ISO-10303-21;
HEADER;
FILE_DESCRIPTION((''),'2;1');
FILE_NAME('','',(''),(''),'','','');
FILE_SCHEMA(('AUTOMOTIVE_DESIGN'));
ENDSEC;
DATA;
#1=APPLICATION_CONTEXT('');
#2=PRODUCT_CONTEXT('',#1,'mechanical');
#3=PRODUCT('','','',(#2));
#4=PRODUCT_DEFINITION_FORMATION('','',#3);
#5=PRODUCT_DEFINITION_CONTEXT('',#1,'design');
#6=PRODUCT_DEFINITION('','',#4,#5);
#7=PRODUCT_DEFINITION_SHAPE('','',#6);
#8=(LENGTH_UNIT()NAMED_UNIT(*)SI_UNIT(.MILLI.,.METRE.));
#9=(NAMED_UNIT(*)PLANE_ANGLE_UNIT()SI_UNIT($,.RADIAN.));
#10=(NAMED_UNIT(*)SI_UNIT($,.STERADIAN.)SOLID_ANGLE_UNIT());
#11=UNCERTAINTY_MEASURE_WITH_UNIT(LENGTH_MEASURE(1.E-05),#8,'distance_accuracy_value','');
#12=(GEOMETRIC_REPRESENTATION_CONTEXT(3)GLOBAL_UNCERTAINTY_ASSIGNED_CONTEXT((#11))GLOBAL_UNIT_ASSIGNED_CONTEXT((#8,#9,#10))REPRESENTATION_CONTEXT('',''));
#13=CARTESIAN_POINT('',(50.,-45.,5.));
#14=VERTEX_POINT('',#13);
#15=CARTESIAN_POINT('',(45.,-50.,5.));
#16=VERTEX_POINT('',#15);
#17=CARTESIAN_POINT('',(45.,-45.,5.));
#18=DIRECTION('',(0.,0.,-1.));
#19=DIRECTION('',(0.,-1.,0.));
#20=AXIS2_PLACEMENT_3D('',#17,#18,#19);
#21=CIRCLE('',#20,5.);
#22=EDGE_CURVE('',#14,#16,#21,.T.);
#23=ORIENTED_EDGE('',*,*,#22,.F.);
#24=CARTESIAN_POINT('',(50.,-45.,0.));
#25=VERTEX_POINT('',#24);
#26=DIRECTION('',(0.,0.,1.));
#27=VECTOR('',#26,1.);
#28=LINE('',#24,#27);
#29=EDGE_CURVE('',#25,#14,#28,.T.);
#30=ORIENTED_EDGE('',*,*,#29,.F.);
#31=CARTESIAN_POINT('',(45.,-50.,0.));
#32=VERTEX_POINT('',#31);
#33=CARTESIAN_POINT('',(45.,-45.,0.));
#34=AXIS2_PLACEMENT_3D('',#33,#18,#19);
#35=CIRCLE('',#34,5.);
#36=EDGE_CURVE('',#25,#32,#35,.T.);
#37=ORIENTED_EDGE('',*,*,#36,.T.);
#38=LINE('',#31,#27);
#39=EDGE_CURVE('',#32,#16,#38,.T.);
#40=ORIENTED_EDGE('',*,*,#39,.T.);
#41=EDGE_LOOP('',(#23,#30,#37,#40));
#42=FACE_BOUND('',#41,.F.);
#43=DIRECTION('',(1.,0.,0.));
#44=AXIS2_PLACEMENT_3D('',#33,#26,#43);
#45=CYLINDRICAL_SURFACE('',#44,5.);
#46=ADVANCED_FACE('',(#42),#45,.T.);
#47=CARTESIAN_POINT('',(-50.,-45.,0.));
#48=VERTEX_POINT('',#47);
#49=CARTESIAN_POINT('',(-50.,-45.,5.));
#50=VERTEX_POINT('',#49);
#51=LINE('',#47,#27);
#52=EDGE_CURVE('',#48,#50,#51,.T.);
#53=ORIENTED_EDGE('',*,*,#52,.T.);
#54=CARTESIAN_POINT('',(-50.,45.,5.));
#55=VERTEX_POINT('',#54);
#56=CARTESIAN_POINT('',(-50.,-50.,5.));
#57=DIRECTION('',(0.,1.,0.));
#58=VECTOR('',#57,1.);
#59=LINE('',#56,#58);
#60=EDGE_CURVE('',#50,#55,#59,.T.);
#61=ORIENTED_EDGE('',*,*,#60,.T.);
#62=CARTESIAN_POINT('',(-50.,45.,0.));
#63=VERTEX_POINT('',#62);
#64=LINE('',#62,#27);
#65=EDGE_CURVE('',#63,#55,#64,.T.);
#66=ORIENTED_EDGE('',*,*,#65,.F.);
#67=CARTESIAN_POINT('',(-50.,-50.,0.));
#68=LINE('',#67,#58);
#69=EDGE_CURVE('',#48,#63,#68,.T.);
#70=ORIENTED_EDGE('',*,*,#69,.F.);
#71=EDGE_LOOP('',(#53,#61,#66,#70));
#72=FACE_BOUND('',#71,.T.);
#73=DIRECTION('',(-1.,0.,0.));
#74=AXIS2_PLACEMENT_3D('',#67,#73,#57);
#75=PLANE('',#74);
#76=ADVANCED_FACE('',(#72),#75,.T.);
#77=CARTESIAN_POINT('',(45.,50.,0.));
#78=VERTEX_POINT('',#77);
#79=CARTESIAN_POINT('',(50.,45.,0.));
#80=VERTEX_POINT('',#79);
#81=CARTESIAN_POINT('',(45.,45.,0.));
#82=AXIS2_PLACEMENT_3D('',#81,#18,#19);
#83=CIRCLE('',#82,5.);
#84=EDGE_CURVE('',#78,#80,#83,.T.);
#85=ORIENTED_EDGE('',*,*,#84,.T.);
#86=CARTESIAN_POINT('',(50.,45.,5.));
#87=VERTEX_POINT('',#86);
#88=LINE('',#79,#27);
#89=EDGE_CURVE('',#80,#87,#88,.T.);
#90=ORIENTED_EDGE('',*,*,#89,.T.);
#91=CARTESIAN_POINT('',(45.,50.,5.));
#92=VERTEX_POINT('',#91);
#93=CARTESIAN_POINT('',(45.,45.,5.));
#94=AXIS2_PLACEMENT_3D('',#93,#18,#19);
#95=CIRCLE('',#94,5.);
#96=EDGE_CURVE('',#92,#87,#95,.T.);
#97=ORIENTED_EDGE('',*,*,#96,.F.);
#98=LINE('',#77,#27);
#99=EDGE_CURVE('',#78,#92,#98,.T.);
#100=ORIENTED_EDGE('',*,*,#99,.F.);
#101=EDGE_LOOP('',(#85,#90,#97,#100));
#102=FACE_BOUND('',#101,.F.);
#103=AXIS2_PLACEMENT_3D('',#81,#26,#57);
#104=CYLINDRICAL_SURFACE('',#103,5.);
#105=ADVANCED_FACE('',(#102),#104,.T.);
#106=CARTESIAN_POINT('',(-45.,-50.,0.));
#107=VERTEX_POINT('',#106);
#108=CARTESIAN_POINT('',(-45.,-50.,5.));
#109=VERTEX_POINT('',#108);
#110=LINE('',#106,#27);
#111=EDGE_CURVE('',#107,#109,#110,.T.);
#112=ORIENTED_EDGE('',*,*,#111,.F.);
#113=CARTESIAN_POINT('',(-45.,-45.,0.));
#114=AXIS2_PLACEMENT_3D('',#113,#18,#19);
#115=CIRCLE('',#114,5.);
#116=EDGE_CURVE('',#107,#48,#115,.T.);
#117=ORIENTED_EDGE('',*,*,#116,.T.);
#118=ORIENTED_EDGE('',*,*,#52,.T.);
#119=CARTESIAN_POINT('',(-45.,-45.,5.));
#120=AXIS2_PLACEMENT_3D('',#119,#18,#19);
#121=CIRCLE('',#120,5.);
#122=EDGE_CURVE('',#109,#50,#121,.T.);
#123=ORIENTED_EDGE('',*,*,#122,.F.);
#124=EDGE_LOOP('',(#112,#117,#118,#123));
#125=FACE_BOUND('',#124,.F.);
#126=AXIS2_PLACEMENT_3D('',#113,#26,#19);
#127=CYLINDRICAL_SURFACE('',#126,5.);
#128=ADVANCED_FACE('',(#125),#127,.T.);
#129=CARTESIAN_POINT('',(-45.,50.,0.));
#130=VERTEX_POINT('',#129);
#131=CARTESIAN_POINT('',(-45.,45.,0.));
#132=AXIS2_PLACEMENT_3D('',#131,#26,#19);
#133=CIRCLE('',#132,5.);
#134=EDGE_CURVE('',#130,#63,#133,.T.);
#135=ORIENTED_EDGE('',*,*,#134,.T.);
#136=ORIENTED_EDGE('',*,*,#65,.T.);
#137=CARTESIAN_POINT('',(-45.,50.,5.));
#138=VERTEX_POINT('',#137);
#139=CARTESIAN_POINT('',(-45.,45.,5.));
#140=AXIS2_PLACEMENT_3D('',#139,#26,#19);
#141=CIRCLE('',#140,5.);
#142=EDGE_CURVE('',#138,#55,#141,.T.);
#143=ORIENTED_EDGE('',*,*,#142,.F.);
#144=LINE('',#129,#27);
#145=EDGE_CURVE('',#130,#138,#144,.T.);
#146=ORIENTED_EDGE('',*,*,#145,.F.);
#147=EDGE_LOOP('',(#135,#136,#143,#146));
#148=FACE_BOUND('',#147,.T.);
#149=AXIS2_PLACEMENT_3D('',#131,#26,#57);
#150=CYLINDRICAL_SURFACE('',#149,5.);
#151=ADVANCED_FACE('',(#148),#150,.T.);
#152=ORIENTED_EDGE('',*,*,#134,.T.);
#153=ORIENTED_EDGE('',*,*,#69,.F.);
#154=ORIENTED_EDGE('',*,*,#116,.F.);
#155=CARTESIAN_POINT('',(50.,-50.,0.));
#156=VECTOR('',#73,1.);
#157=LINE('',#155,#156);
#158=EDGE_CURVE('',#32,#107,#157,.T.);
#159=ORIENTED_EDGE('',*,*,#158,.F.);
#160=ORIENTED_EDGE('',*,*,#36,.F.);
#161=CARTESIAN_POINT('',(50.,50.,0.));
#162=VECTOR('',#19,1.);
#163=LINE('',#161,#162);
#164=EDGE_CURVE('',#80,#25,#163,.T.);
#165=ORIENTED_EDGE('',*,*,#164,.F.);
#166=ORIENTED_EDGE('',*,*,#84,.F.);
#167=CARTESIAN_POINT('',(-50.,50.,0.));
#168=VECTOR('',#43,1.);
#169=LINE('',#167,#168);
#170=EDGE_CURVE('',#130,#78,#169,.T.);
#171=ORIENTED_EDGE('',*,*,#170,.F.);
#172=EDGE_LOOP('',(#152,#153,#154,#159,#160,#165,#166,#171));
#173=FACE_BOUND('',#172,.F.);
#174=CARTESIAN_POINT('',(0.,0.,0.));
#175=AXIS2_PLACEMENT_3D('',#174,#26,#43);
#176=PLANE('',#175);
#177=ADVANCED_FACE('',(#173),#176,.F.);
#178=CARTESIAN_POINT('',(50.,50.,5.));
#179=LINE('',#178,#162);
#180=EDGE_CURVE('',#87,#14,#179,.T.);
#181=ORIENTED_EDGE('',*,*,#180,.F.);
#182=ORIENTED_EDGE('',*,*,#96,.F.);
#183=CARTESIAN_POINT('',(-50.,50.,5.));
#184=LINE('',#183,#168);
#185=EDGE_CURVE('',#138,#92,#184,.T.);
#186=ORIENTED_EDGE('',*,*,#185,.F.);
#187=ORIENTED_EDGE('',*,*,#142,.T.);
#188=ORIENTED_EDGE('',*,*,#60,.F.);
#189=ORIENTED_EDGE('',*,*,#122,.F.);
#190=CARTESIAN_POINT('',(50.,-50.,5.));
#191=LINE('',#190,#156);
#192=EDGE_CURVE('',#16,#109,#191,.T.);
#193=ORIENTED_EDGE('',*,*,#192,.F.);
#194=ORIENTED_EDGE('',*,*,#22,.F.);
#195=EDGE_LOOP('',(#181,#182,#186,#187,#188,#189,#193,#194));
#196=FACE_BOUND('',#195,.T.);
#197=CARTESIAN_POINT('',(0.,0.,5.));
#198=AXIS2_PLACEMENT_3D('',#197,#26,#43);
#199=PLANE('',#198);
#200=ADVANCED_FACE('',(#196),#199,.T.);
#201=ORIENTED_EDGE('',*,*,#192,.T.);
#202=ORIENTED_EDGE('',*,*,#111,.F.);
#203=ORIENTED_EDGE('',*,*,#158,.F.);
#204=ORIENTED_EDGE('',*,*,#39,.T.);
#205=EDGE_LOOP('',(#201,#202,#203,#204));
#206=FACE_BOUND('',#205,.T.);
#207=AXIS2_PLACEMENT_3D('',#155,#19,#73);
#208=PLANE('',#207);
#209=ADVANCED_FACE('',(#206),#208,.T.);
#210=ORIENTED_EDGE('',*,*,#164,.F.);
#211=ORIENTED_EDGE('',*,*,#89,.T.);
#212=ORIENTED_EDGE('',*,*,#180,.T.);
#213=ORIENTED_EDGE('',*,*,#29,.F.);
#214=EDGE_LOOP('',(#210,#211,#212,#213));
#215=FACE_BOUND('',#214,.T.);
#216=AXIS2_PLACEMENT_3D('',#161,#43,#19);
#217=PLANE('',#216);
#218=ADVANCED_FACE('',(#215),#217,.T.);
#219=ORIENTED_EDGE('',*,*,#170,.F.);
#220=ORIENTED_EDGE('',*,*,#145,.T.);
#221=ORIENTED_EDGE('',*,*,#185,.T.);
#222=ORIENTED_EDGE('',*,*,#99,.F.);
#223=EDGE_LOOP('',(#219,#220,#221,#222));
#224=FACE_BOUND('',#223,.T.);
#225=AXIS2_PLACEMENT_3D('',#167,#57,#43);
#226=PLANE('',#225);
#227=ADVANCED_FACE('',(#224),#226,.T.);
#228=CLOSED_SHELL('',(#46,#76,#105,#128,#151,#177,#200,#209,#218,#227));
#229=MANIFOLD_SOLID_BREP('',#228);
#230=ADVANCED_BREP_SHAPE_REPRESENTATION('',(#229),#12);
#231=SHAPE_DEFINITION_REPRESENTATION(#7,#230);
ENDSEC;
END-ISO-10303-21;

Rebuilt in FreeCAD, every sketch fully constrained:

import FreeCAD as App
import Part
import Sketcher

V = App.Vector
Q = App.Units.Quantity


def edges_at(feature, points):
    """Names of the edges that pass closest to the given points."""
    edges = feature.Shape.Edges
    near = lambda p: min(range(len(edges)), key=lambda i: edges[i].distToShape(Part.Vertex(*p))[0])
    return sorted({f"Edge{near(p) + 1}" for p in points})


def add_polygon(sketch, points):
    """Adds a closed chain of lines whose ends are joined by coincident constraints."""
    first, n = sketch.GeometryCount, len(points)
    for a, b in zip(points, points[1:] + points[:1]):
        sketch.addGeometry(Part.LineSegment(App.Vector(*a, 0), App.Vector(*b, 0)), False)
    for i in range(n):
        sketch.addConstraint(Sketcher.Constraint("Coincident", first + i, 2, first + (i + 1) % n, 1))

doc = App.newDocument("Part")
params = doc.addObject("Spreadsheet::Sheet", "Params")
for row, (alias, value) in enumerate([
    ("sketch1_width", "100 mm"),
    ("pad1_length", "5 mm"),
    ("fillet_radius", "5 mm"),
], start=1):
    params.set(f"A{row}", alias)
    params.set(f"B{row}", "=" + value)
    params.setAlias(f"B{row}", alias)

body = doc.addObject("PartDesign::Body", "Body")

sketch1 = body.newObject("Sketcher::SketchObject", "Sketch")
sketch1.AttachmentSupport = (doc.getObject("XY_Plane"), [""])
sketch1.MapMode = "FlatFace"
add_polygon(sketch1, [(50, 50), (-50, 50), (-50, -50), (50, -50)])
sketch1.addConstraint([
    Sketcher.Constraint("Horizontal", 0),
    Sketcher.Constraint("Vertical", 1),
    Sketcher.Constraint("Horizontal", 2),
    Sketcher.Constraint("Vertical", 3),
    Sketcher.Constraint("Symmetric", 0, 2, 2, 2, -1, 1),
    Sketcher.Constraint("Equal", 2, 1),
    Sketcher.Constraint("DistanceX", 0, 2, 0, 1, Q("100 mm")),
])
sketch1.setExpression("Constraints[10]", "Params.sketch1_width")
pad1 = body.newObject("PartDesign::Pad", "Pad")
pad1.Profile = sketch1
pad1.setExpression("Length", "Params.pad1_length")
doc.recompute()

fillet = body.newObject("PartDesign::Fillet", "Fillet")
fillet.Base = (pad1, edges_at(pad1, [
    (50, 50, 2.5),
    (-50, 50, 2.5),
    (50, -50, 2.5),
    (-50, -50, 2.5),
]))
fillet.setExpression("Radius", "Params.fillet_radius")

doc.recompute()
